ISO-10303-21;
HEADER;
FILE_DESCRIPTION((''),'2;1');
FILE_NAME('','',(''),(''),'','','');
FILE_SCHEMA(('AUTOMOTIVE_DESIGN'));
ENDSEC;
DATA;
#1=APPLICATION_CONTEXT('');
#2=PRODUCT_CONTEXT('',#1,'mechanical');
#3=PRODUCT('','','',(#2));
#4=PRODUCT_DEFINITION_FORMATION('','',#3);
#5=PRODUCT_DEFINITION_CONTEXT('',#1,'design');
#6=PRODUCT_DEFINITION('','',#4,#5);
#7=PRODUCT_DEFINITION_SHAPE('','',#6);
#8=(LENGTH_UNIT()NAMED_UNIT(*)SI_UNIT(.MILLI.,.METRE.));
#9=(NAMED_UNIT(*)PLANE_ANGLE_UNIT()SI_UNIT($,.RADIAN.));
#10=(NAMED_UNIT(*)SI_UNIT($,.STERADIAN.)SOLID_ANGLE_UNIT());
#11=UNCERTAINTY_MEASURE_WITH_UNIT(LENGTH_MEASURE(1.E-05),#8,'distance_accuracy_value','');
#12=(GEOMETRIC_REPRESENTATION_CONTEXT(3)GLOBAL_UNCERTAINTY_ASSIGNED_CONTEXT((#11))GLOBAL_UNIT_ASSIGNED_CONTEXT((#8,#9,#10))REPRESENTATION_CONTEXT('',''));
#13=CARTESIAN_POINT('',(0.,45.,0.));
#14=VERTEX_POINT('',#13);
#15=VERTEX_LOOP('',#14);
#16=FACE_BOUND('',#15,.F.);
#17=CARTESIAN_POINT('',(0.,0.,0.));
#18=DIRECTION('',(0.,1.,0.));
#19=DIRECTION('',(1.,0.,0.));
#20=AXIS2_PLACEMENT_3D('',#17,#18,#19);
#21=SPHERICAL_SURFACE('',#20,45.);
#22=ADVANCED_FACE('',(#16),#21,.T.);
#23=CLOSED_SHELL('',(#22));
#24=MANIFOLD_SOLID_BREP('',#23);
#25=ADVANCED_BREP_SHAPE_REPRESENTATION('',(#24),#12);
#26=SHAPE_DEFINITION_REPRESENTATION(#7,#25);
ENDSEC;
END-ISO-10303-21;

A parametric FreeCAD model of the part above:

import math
import FreeCAD as App
import Part
import Sketcher
Q = App.Units.Quantity

doc = App.newDocument("Part")
body = doc.addObject("PartDesign::Body", "Body")

sketch1 = body.newObject("Sketcher::SketchObject", "Sketch")
sketch1.AttachmentSupport = (doc.getObject("XY_Plane"), [""])
sketch1.MapMode = "FlatFace"
sketch1.addGeometry(Part.LineSegment(App.Vector(0, 45, 0), App.Vector(0, -45, 0)), False)
sketch1.addGeometry(Part.ArcOfCircle(Part.Circle(App.Vector(0, 0, 0), App.Vector(0, 0, 1), 45), math.radians(-90), math.radians(90)), False)
sketch1.addConstraint(Sketcher.Constraint("Coincident", 0, 1, 1, 2))
sketch1.addConstraint(Sketcher.Constraint("Coincident", 1, 1, 0, 2))
sketch1.addConstraint(Sketcher.Constraint("Vertical", 0))
sketch1.addConstraint(Sketcher.Constraint("Coincident", 1, 3, -1, 1))
sketch1.addConstraint(Sketcher.Constraint("PointOnObject", 0, 1, -2))
sketch1.addConstraint(Sketcher.Constraint("Radius", 1, Q("45 mm")))
revolution = body.newObject("PartDesign::Revolution", "Revolution")
revolution.Profile = sketch1
revolution.ReferenceAxis = (sketch1, ["V_Axis"])
revolution.Angle = 360

doc.recompute()
